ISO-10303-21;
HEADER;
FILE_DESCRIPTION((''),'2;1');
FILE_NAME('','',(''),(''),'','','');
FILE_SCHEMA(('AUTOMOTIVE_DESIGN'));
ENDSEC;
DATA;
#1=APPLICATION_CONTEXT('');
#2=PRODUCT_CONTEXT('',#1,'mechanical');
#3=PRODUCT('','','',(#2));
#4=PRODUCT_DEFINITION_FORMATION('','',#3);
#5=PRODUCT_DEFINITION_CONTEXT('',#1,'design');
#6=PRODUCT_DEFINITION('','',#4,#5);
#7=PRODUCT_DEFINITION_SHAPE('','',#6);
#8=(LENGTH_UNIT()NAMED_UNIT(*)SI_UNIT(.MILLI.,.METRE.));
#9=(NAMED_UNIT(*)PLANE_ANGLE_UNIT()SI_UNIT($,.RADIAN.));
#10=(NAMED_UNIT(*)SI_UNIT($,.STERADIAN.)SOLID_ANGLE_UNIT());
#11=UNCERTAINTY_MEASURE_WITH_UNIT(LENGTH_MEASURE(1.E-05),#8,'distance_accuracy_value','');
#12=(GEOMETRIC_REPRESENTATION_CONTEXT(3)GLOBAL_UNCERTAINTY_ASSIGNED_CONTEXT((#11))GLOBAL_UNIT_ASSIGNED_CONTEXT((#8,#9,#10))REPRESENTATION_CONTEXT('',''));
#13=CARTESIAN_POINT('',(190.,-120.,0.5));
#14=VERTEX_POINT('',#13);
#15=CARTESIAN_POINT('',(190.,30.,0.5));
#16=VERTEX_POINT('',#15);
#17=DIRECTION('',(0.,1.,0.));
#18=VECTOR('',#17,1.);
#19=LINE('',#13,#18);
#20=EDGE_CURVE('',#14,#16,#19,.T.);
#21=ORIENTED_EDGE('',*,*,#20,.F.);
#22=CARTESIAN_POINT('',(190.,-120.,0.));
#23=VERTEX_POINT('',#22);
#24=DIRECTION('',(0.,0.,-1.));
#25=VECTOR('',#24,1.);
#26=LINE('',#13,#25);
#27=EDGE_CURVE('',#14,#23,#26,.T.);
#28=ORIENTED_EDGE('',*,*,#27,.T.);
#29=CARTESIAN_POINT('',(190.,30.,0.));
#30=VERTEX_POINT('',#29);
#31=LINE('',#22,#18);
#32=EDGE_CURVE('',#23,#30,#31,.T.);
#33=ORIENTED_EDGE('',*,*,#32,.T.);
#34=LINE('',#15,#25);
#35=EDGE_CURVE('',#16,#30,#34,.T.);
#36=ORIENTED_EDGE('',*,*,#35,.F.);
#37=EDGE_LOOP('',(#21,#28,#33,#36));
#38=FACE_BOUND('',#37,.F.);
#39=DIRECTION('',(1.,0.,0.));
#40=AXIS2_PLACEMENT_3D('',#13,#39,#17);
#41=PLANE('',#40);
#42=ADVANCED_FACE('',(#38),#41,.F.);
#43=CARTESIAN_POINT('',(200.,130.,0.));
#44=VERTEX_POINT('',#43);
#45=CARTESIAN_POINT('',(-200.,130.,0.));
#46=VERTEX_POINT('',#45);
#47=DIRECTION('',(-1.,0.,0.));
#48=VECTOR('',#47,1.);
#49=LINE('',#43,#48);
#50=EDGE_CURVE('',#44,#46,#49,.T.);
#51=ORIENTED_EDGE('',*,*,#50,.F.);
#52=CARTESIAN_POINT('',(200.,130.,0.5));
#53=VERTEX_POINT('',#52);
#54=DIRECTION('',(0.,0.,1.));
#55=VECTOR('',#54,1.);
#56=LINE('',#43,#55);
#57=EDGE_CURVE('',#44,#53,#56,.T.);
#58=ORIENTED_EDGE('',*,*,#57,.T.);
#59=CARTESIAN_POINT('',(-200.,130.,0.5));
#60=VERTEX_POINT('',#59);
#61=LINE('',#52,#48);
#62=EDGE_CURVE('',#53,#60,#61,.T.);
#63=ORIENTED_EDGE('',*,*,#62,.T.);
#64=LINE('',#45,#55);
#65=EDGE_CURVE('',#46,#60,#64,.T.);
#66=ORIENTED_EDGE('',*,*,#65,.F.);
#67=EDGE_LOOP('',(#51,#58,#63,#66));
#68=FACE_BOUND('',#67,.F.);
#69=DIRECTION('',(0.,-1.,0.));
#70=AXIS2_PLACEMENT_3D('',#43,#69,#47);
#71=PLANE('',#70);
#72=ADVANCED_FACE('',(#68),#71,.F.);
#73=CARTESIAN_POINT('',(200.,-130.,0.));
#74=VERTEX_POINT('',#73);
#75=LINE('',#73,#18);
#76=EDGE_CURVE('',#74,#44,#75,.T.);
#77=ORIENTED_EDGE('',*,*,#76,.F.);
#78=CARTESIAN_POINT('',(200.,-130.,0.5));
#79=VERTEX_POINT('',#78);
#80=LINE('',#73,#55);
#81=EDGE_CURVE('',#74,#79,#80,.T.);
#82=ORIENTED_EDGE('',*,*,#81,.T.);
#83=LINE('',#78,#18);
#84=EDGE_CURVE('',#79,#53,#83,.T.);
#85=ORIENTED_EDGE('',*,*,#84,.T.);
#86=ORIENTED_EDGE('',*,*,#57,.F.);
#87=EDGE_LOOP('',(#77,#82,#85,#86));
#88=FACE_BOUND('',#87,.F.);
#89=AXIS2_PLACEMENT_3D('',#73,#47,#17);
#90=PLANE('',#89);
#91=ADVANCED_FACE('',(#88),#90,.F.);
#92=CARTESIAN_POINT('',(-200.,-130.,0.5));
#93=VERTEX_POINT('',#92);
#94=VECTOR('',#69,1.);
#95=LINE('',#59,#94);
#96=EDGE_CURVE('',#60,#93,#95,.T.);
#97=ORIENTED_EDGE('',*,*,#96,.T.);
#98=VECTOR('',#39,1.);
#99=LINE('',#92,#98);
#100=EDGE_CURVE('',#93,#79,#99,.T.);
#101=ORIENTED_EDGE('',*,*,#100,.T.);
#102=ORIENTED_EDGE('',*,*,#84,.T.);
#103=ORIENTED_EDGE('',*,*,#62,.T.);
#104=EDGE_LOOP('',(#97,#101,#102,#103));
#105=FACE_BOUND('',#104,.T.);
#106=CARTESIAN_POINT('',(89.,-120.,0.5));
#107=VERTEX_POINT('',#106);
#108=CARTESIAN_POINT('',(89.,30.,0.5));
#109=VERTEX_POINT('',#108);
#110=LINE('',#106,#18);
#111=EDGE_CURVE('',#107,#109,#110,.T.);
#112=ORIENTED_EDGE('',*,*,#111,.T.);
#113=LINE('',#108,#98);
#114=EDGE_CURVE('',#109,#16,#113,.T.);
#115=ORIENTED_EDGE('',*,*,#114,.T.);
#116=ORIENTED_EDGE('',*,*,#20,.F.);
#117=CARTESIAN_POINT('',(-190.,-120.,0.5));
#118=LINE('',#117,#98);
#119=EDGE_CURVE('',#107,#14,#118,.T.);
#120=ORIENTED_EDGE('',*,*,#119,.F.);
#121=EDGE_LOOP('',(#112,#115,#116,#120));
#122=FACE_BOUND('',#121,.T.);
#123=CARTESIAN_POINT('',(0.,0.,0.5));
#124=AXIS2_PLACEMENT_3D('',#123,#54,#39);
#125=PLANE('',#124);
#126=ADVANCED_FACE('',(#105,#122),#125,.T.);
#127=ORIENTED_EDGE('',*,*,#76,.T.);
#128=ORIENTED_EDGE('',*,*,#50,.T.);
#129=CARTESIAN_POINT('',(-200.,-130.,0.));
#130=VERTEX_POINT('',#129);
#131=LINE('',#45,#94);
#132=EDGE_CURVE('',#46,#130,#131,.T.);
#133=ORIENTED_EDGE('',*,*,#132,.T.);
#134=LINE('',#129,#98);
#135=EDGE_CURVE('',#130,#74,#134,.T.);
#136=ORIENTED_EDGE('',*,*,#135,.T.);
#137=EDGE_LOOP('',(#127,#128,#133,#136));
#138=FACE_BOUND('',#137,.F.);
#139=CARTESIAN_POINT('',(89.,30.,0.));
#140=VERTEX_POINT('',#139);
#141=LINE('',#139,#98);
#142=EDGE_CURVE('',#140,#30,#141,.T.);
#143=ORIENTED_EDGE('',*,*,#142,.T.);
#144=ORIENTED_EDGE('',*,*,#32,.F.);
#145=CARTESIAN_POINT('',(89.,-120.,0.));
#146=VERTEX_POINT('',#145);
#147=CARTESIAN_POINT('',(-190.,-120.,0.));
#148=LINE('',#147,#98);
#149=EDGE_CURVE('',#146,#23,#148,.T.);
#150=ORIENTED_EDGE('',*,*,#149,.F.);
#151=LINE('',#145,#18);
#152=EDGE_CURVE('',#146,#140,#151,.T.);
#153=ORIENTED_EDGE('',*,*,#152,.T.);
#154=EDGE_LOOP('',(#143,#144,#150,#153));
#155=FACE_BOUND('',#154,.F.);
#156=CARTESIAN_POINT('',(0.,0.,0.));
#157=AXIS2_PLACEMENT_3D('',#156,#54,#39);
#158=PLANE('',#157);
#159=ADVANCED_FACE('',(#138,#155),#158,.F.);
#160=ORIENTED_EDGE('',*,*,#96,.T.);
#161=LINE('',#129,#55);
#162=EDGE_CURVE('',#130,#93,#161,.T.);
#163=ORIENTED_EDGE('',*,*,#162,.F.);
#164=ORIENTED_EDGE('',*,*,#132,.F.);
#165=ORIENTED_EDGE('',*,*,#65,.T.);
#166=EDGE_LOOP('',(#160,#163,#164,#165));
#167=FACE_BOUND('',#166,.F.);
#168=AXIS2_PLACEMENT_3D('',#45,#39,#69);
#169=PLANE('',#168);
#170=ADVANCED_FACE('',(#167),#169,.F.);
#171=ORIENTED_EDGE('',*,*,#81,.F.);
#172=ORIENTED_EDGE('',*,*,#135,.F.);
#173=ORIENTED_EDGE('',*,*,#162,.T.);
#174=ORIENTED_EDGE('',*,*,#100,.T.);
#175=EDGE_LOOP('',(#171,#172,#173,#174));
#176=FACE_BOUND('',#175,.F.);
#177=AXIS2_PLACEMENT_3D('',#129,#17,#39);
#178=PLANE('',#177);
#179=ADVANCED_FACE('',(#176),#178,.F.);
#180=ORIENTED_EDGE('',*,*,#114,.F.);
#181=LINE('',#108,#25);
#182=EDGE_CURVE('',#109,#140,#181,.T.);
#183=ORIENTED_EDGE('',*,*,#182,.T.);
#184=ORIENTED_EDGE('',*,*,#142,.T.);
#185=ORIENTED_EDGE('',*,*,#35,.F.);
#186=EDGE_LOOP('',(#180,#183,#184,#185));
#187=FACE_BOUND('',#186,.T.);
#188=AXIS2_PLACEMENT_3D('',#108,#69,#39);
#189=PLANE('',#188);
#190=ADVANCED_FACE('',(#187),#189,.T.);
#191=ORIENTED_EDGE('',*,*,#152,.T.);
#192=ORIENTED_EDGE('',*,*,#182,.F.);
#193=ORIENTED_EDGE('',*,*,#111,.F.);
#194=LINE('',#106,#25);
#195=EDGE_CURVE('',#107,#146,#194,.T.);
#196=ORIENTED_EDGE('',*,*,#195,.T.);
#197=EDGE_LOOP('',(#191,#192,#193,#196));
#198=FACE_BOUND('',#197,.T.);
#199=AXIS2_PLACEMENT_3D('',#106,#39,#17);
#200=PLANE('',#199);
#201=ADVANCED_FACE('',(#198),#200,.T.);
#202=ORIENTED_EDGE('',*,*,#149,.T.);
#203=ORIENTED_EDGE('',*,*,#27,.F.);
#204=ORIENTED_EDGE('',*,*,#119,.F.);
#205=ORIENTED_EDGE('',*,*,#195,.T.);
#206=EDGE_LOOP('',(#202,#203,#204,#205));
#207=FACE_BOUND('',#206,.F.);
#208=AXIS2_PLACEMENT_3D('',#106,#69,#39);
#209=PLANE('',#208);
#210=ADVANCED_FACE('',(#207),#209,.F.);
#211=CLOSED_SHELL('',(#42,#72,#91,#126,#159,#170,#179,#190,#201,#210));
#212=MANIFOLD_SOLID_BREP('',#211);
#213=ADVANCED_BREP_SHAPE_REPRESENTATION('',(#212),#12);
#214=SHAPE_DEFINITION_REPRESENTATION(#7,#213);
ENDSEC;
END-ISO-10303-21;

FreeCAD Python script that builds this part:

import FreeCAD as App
import Part
import Sketcher


def add_polygon(sketch, points):
    """Adds a closed chain of lines whose ends are joined by coincident constraints."""
    first, n = sketch.GeometryCount, len(points)
    for a, b in zip(points, points[1:] + points[:1]):
        sketch.addGeometry(Part.LineSegment(App.Vector(*a, 0), App.Vector(*b, 0)), False)
    for i in range(n):
        sketch.addConstraint(Sketcher.Constraint("Coincident", first + i, 2, first + (i + 1) % n, 1))

doc = App.newDocument("Part")
body = doc.addObject("PartDesign::Body", "Body")

sketch1 = body.newObject("Sketcher::SketchObject", "Sketch")
sketch1.AttachmentSupport = (doc.getObject("XY_Plane"), [""])
sketch1.MapMode = "FlatFace"
add_polygon(sketch1, [(-200, 130), (-200, -130), (200, -130), (200, 130)])
sketch1.addConstraint(Sketcher.Constraint("Vertical", 0))
sketch1.addConstraint(Sketcher.Constraint("Horizontal", 1))
sketch1.addConstraint(Sketcher.Constraint("Vertical", 2))
sketch1.addConstraint(Sketcher.Constraint("Horizontal", 3))
sketch1.addConstraint(Sketcher.Constraint("Symmetric", 0, 2, 2, 2, -1, 1))
sketch1.addConstraint(Sketcher.Constraint("DistanceX", 1, 1, 1, 2, 400.0))
sketch1.addConstraint(Sketcher.Constraint("DistanceY", 0, 2, 0, 1, 260.0))
pad1 = body.newObject("PartDesign::Pad", "Pad")
pad1.Profile = sketch1
pad1.Length = 0.5

sketch2 = body.newObject("Sketcher::SketchObject", "Sketch001")
sketch2.AttachmentSupport = (doc.getObject("XY_Plane"), [""])
sketch2.MapMode = "FlatFace"
sketch2.AttachmentOffset = App.Placement(App.Vector(0, 0, 0.5), App.Rotation())
add_polygon(sketch2, [(89, 30), (89, -120), (190, -120), (190, 30)])
sketch2.addConstraint(Sketcher.Constraint("Vertical", 0))
sketch2.addConstraint(Sketcher.Constraint("Horizontal", 1))
sketch2.addConstraint(Sketcher.Constraint("Vertical", 2))
sketch2.addConstraint(Sketcher.Constraint("Horizontal", 3))
sketch2.addConstraint(Sketcher.Constraint("DistanceX", 1, 1, 1, 2, 101.0))
sketch2.addConstraint(Sketcher.Constraint("DistanceY", 0, 2, 0, 1, 150.0))
sketch2.addConstraint(Sketcher.Constraint("DistanceX", -1, 1, 0, 2, 89.0))
sketch2.addConstraint(Sketcher.Constraint("DistanceY", 0, 2, -1, 1, 120.0))
pocket1 = body.newObject("PartDesign::Pocket", "Pocket")
pocket1.Profile = sketch2
pocket1.Length = 0.5

doc.recompute()
